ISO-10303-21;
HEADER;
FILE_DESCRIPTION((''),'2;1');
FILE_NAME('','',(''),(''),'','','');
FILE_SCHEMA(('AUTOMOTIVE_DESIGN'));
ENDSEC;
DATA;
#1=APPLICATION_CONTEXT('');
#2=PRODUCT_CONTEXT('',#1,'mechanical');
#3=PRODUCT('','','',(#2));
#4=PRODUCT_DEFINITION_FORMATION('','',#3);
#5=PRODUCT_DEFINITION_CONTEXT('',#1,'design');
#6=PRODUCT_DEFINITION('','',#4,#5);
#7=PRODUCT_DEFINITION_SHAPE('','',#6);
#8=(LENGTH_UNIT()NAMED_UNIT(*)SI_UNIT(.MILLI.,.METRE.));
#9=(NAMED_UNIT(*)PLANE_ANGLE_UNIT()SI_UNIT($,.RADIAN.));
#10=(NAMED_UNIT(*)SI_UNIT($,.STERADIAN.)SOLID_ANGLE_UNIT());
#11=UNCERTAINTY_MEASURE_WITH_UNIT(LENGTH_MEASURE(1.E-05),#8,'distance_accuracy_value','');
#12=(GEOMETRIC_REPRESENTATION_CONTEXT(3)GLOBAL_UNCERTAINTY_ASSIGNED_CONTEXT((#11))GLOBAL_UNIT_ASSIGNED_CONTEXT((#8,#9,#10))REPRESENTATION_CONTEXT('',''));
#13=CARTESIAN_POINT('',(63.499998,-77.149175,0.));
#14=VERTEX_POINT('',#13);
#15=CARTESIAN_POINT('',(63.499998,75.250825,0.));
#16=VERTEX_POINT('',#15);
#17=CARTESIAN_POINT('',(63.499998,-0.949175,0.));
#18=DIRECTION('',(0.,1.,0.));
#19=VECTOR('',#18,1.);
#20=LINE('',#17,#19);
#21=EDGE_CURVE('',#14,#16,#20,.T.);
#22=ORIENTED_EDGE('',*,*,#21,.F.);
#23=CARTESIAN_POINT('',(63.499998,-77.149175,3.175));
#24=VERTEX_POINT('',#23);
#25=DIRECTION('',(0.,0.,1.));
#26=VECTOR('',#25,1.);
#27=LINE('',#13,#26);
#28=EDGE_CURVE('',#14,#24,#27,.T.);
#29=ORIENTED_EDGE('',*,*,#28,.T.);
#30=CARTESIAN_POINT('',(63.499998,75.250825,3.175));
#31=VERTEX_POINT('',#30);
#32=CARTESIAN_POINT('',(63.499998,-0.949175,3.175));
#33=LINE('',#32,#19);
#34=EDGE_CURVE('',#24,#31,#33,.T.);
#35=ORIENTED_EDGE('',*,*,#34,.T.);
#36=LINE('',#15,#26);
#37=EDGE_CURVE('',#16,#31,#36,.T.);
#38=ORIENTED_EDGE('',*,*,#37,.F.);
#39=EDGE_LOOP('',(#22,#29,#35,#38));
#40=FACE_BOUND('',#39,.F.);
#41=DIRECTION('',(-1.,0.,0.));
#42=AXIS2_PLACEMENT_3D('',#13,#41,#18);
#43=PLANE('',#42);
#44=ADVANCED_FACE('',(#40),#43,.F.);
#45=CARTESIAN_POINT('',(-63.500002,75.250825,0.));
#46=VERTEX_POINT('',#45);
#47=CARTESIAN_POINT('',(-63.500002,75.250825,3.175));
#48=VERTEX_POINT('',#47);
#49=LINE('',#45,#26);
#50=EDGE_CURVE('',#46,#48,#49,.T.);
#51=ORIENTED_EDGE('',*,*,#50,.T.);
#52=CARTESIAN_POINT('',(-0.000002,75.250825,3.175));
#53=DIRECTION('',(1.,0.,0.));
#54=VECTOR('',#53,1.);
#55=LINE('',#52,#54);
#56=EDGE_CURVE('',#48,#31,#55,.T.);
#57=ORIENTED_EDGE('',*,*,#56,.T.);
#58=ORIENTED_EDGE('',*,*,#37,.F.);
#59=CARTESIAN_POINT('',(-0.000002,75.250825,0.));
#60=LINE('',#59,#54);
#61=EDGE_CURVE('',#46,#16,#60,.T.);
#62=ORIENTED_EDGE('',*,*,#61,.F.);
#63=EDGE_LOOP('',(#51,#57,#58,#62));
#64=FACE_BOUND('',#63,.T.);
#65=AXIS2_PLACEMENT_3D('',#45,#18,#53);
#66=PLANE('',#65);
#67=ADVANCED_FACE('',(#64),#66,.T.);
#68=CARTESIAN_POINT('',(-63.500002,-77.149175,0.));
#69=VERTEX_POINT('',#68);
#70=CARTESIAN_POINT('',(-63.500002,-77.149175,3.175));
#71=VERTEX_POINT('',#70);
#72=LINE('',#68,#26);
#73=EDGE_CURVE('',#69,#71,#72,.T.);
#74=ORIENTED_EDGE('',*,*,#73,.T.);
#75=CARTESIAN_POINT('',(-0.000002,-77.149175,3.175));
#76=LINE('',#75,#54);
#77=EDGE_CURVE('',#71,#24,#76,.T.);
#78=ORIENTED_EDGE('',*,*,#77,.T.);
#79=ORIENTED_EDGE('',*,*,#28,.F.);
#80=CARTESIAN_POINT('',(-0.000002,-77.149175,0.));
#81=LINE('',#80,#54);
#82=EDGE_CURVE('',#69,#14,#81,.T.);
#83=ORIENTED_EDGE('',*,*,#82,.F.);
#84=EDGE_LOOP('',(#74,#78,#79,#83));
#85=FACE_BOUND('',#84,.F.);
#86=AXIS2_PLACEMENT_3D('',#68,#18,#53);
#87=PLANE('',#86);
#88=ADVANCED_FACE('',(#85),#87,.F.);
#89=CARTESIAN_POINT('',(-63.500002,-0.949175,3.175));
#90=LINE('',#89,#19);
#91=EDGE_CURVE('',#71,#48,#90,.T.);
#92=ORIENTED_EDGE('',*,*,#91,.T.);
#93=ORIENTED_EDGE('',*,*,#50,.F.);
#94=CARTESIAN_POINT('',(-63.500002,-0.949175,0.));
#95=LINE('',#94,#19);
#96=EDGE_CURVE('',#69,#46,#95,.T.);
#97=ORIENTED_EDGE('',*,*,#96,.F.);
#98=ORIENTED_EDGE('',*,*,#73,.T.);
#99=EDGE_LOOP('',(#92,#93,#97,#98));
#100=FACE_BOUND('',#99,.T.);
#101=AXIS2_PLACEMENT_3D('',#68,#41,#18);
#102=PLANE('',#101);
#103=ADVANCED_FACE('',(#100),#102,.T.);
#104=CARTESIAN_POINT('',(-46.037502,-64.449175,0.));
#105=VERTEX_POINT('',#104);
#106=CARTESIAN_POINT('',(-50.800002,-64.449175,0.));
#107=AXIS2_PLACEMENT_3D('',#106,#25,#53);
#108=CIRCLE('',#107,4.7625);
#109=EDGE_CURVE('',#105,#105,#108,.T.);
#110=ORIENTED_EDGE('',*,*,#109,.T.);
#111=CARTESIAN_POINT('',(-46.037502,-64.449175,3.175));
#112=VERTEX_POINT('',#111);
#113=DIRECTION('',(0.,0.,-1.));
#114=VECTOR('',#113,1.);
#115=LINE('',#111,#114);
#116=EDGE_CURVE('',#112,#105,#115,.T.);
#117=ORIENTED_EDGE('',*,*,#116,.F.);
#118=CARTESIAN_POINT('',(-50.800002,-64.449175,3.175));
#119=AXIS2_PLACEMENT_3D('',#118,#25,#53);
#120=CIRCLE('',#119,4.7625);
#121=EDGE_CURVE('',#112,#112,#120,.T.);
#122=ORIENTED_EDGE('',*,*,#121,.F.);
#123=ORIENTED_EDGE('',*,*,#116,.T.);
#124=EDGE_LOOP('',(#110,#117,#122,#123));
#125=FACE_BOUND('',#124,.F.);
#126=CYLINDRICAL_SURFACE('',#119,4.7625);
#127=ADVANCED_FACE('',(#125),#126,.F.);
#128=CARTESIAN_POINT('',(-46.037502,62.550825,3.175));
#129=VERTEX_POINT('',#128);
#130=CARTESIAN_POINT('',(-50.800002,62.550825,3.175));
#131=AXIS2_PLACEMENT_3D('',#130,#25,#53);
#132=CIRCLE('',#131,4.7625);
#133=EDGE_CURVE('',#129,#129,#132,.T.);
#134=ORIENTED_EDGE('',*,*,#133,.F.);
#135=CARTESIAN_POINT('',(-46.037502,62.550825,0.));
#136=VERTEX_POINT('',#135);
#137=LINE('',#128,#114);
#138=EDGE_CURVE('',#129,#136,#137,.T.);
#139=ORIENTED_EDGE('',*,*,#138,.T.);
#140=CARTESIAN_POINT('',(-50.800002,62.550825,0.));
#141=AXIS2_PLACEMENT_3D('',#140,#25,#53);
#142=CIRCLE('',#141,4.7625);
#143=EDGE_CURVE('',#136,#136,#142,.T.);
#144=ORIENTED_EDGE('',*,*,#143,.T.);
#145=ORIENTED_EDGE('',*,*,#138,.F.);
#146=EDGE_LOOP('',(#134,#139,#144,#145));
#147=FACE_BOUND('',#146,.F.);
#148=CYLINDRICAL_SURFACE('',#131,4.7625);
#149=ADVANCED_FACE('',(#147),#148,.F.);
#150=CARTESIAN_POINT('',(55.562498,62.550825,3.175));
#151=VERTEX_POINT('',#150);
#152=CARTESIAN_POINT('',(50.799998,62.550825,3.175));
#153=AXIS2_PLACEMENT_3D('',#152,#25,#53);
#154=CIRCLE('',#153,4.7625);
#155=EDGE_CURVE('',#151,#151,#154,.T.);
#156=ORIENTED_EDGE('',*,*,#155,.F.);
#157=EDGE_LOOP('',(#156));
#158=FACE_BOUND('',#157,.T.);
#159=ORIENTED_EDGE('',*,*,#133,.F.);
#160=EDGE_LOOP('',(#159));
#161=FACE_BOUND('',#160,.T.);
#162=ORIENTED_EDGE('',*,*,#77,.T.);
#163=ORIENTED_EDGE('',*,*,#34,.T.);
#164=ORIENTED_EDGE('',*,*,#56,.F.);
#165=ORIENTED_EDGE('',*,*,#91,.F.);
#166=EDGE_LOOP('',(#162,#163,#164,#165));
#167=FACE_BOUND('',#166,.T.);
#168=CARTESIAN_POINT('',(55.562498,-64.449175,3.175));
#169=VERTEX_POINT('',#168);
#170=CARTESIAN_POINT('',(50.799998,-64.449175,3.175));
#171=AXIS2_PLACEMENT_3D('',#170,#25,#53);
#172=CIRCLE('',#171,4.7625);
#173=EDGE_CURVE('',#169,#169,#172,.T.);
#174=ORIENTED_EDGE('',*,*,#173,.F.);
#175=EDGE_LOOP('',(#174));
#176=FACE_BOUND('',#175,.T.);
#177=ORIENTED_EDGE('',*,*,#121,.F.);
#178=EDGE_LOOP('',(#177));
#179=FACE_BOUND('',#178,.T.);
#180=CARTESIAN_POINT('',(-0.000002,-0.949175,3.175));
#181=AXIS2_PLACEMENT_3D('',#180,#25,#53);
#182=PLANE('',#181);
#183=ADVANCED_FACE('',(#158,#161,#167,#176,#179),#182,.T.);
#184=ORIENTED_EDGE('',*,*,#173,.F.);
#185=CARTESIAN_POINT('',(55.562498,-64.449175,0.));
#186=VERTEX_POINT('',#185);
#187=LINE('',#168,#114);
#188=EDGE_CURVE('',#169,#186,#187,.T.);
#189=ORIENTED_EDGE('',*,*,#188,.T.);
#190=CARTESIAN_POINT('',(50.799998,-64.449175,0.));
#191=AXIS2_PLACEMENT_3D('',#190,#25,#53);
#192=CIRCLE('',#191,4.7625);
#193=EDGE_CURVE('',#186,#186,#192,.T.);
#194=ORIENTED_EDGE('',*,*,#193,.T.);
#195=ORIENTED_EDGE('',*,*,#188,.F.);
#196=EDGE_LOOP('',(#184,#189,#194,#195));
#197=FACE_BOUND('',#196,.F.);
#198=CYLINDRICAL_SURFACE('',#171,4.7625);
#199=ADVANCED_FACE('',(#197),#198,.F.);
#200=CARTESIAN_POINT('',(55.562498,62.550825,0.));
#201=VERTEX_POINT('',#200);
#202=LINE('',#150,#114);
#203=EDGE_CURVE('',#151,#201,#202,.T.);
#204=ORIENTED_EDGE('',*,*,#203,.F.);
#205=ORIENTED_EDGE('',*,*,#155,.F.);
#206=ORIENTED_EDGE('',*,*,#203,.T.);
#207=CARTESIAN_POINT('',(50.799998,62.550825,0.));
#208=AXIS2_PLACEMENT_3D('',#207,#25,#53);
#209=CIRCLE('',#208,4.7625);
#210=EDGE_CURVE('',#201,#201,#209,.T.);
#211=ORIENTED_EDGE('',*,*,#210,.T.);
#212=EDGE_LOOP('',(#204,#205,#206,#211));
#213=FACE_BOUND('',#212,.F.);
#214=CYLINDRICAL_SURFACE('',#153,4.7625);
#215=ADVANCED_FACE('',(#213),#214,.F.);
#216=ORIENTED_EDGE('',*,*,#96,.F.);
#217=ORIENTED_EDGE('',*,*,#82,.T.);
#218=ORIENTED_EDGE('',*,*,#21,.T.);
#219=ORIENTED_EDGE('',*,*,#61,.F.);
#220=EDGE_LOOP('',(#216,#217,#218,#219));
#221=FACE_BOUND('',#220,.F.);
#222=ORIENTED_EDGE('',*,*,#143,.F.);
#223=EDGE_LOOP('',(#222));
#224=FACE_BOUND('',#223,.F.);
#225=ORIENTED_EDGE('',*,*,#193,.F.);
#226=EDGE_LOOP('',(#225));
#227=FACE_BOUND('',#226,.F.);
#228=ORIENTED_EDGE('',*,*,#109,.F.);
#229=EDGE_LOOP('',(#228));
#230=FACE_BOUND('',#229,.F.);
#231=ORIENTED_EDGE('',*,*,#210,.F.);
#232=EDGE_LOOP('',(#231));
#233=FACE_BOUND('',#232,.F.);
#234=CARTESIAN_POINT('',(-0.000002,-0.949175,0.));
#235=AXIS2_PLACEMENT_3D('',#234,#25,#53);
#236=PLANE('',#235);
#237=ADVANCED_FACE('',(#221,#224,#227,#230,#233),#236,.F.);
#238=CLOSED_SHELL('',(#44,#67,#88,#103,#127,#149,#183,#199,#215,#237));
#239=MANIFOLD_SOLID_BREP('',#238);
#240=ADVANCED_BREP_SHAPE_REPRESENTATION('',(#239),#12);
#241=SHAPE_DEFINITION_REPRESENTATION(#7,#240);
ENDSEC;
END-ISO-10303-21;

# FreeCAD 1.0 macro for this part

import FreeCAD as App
import Part
import Sketcher
from FreeCAD import Vector
Q = App.Units.Quantity

doc = App.newDocument("Part")
body = doc.addObject("PartDesign::Body", "Body")

# Sketch on XY plane
sketch1 = body.newObject("Sketcher::SketchObject", "Sketch")
sketch1.AttachmentSupport = (doc.getObject("XY_Plane"), [""])
sketch1.MapMode = "FlatFace"
sketch1.addGeometry(Part.LineSegment(Vector(-64, 75, 0), Vector(-64, -77, 0)), False)
sketch1.addGeometry(Part.LineSegment(Vector(-64, -77, 0), Vector(63, -77, 0)), False)
sketch1.addGeometry(Part.LineSegment(Vector(63, -77, 0), Vector(63, 75, 0)), False)
sketch1.addGeometry(Part.LineSegment(Vector(63, 75, 0), Vector(-64, 75, 0)), False)
sketch1.addConstraint(Sketcher.Constraint("Coincident", 0, 2, 1, 1))
sketch1.addConstraint(Sketcher.Constraint("Coincident", 1, 2, 2, 1))
sketch1.addConstraint(Sketcher.Constraint("Coincident", 2, 2, 3, 1))
sketch1.addConstraint(Sketcher.Constraint("Coincident", 3, 2, 0, 1))
sketch1.addConstraint(Sketcher.Constraint("Vertical", 0))
sketch1.addConstraint(Sketcher.Constraint("Horizontal", 1))
sketch1.addConstraint(Sketcher.Constraint("Vertical", 2))
sketch1.addConstraint(Sketcher.Constraint("Horizontal", 3))
sketch1.addConstraint(Sketcher.Constraint("DistanceX", 1, 1, 1, 2, Q("5 in")))
sketch1.addConstraint(Sketcher.Constraint("DistanceY", 0, 2, 0, 1, Q("6 in")))
sketch1.addConstraint(Sketcher.Constraint("DistanceX", 0, 2, -1, 1, Q("2.5000001 in")))
sketch1.addConstraint(Sketcher.Constraint("DistanceY", 0, 2, -1, 1, 77.149175))
pad1 = body.newObject("PartDesign::Pad", "Pad")
pad1.Profile = sketch1
pad1.Length = Q("0.125 in")

# Sketch on XY plane
sketch2 = body.newObject("Sketcher::SketchObject", "Sketch001")
sketch2.AttachmentSupport = (doc.getObject("XY_Plane"), [""])
sketch2.MapMode = "FlatFace"
sketch2.AttachmentOffset = App.Placement(Vector(0, 0, 0.125 * 25.4), App.Rotation())
sketch2.addGeometry(Part.Circle(Vector(-50.8, -64.4, 0), Vector(0, 0, 1), 4.8), False)
sketch2.addGeometry(Part.Circle(Vector(50.8, -64.4, 0), Vector(0, 0, 1), 4.8), False)
sketch2.addGeometry(Part.Circle(Vector(-50.8, 62.6, 0), Vector(0, 0, 1), 4.8), False)
sketch2.addGeometry(Part.Circle(Vector(50.8, 62.6, 0), Vector(0, 0, 1), 4.8), False)
sketch2.addConstraint(Sketcher.Constraint("Equal", 0, 1))
sketch2.addConstraint(Sketcher.Constraint("Equal", 1, 2))
sketch2.addConstraint(Sketcher.Constraint("Equal", 2, 3))
sketch2.addConstraint(Sketcher.Constraint("Symmetric", 0, 3, 1, 3, -2))
sketch2.addConstraint(Sketcher.Constraint("Symmetric", 2, 3, 3, 3, -2))
sketch2.addConstraint(Sketcher.Constraint("Vertical", 0, 3, 2, 3))
sketch2.addConstraint(Sketcher.Constraint("Diameter", 0, Q("0.375 in")))
sketch2.addConstraint(Sketcher.Constraint("DistanceX", 0, 3, -1, 1, Q("2.0000001 in")))
sketch2.addConstraint(Sketcher.Constraint("DistanceY", 0, 3, 2, 3, Q("5 in")))
sketch2.addConstraint(Sketcher.Constraint("DistanceY", 0, 3, -1, 1, 64.449175))
pocket1 = body.newObject("PartDesign::Pocket", "Pocket")
pocket1.Profile = sketch2
pocket1.Length = Q("1 in")

doc.recompute()
